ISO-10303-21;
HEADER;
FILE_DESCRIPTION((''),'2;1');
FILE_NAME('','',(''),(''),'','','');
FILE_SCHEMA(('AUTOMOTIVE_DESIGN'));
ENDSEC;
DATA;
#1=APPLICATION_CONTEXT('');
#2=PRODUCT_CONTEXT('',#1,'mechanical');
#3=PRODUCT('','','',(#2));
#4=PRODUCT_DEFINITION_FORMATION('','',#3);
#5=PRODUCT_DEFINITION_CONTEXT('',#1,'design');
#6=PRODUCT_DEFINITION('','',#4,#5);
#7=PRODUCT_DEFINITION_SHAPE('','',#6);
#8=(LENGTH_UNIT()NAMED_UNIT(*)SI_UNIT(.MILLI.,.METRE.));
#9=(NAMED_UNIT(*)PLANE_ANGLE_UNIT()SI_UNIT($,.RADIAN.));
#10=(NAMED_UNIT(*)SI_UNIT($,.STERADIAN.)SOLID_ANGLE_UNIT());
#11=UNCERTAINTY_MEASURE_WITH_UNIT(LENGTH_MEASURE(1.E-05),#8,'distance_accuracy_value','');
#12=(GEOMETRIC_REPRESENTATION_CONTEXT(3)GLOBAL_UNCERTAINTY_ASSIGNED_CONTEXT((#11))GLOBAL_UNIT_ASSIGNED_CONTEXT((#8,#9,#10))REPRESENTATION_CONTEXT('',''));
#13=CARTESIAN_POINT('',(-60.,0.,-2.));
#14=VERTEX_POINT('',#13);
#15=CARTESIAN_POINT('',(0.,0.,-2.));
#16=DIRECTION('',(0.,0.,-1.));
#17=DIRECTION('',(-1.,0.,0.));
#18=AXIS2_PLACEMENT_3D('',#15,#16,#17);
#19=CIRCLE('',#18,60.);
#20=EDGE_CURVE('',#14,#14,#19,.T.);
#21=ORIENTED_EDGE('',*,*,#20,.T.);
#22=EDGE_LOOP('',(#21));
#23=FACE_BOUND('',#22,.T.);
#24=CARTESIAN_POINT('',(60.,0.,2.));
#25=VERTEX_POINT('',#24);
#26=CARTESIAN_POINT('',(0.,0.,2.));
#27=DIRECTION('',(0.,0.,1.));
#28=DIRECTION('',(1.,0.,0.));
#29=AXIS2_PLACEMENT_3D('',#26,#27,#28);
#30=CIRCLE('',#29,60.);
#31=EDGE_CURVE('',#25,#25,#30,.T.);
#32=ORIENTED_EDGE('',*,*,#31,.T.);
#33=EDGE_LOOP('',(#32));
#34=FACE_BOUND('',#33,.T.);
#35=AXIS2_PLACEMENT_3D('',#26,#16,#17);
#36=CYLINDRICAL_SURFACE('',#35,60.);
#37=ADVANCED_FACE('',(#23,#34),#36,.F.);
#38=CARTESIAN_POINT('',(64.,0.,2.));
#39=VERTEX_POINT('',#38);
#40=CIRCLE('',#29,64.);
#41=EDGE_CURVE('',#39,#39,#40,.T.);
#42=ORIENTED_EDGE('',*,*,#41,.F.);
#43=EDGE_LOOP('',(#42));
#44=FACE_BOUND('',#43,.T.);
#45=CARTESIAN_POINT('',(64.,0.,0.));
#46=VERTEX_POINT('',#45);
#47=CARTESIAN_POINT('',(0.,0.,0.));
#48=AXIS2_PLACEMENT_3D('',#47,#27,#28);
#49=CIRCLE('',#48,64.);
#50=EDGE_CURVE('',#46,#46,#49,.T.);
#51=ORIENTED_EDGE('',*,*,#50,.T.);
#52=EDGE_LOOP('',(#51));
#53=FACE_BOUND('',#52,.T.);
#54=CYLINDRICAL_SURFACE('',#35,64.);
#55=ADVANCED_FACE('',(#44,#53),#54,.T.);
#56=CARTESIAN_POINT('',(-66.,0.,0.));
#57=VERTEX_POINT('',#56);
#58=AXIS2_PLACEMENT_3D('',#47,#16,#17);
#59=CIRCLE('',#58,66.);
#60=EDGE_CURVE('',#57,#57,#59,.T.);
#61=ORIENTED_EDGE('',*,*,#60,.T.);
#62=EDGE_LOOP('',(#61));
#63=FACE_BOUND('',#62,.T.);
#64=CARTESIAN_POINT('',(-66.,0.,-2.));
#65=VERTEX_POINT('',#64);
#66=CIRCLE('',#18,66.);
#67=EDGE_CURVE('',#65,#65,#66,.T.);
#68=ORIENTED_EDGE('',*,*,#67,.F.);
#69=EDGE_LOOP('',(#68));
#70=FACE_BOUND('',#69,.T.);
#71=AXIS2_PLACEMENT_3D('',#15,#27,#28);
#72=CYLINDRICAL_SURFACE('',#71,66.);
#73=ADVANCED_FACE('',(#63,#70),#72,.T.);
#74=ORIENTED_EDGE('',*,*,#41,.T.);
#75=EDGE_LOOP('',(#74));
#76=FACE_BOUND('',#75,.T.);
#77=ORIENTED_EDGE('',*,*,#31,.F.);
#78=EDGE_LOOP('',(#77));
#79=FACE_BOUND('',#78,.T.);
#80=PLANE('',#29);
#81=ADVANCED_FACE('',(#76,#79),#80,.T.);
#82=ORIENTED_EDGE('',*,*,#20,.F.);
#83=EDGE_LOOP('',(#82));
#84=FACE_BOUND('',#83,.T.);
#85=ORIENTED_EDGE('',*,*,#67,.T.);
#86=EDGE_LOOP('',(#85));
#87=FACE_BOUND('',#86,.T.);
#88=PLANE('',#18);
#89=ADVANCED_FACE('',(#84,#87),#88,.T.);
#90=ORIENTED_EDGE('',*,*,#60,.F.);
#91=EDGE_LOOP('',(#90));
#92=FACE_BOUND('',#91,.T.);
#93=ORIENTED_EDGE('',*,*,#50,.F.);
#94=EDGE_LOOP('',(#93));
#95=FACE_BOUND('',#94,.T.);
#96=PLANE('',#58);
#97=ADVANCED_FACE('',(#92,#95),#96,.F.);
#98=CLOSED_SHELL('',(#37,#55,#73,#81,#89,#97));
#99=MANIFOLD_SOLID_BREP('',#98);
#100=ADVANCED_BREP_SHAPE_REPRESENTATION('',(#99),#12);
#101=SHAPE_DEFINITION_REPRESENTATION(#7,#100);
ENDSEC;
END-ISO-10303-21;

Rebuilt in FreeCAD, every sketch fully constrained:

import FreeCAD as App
import Part
import Sketcher

V = App.Vector
Q = App.Units.Quantity

doc = App.newDocument("Part")
body = doc.addObject("PartDesign::Body", "Body")

# Sketch on XY plane
sketch1 = body.newObject("Sketcher::SketchObject", "Sketch")
sketch1.AttachmentSupport = (doc.getObject("XY_Plane"), [""])
sketch1.MapMode = "FlatFace"
sketch1.addGeometry(Part.Circle(V(0, 0, 0), V(0, 0, 1), 64), False)
sketch1.addGeometry(Part.Circle(V(0, 0, 0), V(0, 0, 1), 60), False)
sketch1.addConstraint(Sketcher.Constraint("Coincident", 0, 3, -1, 1))
sketch1.addConstraint(Sketcher.Constraint("Coincident", 1, 3, -1, 1))
sketch1.addConstraint(Sketcher.Constraint("Diameter", 0, Q("128 mm")))
sketch1.addConstraint(Sketcher.Constraint("Diameter", 1, Q("120 mm")))
pad1 = body.newObject("PartDesign::Pad", "Pad")
pad1.Profile = sketch1
pad1.Length = 2

# Sketch on XY plane
sketch2 = body.newObject("Sketcher::SketchObject", "Sketch001")
sketch2.AttachmentSupport = (doc.getObject("XY_Plane"), [""])
sketch2.MapMode = "FlatFace"
sketch2.AttachmentOffset = App.Placement(V(0, 0, -2), App.Rotation())
sketch2.addGeometry(Part.Circle(V(0, 0, 0), V(0, 0, 1), 66), False)
sketch2.addGeometry(Part.Circle(V(0, 0, 0), V(0, 0, 1), 60), False)
sketch2.addConstraint(Sketcher.Constraint("Coincident", 0, 3, -1, 1))
sketch2.addConstraint(Sketcher.Constraint("Coincident", 1, 3, -1, 1))
sketch2.addConstraint(Sketcher.Constraint("Diameter", 0, Q("132 mm")))
sketch2.addConstraint(Sketcher.Constraint("Diameter", 1, Q("120 mm")))
pad2 = body.newObject("PartDesign::Pad", "Pad001")
pad2.Profile = sketch2
pad2.Length = 2

doc.recompute()
